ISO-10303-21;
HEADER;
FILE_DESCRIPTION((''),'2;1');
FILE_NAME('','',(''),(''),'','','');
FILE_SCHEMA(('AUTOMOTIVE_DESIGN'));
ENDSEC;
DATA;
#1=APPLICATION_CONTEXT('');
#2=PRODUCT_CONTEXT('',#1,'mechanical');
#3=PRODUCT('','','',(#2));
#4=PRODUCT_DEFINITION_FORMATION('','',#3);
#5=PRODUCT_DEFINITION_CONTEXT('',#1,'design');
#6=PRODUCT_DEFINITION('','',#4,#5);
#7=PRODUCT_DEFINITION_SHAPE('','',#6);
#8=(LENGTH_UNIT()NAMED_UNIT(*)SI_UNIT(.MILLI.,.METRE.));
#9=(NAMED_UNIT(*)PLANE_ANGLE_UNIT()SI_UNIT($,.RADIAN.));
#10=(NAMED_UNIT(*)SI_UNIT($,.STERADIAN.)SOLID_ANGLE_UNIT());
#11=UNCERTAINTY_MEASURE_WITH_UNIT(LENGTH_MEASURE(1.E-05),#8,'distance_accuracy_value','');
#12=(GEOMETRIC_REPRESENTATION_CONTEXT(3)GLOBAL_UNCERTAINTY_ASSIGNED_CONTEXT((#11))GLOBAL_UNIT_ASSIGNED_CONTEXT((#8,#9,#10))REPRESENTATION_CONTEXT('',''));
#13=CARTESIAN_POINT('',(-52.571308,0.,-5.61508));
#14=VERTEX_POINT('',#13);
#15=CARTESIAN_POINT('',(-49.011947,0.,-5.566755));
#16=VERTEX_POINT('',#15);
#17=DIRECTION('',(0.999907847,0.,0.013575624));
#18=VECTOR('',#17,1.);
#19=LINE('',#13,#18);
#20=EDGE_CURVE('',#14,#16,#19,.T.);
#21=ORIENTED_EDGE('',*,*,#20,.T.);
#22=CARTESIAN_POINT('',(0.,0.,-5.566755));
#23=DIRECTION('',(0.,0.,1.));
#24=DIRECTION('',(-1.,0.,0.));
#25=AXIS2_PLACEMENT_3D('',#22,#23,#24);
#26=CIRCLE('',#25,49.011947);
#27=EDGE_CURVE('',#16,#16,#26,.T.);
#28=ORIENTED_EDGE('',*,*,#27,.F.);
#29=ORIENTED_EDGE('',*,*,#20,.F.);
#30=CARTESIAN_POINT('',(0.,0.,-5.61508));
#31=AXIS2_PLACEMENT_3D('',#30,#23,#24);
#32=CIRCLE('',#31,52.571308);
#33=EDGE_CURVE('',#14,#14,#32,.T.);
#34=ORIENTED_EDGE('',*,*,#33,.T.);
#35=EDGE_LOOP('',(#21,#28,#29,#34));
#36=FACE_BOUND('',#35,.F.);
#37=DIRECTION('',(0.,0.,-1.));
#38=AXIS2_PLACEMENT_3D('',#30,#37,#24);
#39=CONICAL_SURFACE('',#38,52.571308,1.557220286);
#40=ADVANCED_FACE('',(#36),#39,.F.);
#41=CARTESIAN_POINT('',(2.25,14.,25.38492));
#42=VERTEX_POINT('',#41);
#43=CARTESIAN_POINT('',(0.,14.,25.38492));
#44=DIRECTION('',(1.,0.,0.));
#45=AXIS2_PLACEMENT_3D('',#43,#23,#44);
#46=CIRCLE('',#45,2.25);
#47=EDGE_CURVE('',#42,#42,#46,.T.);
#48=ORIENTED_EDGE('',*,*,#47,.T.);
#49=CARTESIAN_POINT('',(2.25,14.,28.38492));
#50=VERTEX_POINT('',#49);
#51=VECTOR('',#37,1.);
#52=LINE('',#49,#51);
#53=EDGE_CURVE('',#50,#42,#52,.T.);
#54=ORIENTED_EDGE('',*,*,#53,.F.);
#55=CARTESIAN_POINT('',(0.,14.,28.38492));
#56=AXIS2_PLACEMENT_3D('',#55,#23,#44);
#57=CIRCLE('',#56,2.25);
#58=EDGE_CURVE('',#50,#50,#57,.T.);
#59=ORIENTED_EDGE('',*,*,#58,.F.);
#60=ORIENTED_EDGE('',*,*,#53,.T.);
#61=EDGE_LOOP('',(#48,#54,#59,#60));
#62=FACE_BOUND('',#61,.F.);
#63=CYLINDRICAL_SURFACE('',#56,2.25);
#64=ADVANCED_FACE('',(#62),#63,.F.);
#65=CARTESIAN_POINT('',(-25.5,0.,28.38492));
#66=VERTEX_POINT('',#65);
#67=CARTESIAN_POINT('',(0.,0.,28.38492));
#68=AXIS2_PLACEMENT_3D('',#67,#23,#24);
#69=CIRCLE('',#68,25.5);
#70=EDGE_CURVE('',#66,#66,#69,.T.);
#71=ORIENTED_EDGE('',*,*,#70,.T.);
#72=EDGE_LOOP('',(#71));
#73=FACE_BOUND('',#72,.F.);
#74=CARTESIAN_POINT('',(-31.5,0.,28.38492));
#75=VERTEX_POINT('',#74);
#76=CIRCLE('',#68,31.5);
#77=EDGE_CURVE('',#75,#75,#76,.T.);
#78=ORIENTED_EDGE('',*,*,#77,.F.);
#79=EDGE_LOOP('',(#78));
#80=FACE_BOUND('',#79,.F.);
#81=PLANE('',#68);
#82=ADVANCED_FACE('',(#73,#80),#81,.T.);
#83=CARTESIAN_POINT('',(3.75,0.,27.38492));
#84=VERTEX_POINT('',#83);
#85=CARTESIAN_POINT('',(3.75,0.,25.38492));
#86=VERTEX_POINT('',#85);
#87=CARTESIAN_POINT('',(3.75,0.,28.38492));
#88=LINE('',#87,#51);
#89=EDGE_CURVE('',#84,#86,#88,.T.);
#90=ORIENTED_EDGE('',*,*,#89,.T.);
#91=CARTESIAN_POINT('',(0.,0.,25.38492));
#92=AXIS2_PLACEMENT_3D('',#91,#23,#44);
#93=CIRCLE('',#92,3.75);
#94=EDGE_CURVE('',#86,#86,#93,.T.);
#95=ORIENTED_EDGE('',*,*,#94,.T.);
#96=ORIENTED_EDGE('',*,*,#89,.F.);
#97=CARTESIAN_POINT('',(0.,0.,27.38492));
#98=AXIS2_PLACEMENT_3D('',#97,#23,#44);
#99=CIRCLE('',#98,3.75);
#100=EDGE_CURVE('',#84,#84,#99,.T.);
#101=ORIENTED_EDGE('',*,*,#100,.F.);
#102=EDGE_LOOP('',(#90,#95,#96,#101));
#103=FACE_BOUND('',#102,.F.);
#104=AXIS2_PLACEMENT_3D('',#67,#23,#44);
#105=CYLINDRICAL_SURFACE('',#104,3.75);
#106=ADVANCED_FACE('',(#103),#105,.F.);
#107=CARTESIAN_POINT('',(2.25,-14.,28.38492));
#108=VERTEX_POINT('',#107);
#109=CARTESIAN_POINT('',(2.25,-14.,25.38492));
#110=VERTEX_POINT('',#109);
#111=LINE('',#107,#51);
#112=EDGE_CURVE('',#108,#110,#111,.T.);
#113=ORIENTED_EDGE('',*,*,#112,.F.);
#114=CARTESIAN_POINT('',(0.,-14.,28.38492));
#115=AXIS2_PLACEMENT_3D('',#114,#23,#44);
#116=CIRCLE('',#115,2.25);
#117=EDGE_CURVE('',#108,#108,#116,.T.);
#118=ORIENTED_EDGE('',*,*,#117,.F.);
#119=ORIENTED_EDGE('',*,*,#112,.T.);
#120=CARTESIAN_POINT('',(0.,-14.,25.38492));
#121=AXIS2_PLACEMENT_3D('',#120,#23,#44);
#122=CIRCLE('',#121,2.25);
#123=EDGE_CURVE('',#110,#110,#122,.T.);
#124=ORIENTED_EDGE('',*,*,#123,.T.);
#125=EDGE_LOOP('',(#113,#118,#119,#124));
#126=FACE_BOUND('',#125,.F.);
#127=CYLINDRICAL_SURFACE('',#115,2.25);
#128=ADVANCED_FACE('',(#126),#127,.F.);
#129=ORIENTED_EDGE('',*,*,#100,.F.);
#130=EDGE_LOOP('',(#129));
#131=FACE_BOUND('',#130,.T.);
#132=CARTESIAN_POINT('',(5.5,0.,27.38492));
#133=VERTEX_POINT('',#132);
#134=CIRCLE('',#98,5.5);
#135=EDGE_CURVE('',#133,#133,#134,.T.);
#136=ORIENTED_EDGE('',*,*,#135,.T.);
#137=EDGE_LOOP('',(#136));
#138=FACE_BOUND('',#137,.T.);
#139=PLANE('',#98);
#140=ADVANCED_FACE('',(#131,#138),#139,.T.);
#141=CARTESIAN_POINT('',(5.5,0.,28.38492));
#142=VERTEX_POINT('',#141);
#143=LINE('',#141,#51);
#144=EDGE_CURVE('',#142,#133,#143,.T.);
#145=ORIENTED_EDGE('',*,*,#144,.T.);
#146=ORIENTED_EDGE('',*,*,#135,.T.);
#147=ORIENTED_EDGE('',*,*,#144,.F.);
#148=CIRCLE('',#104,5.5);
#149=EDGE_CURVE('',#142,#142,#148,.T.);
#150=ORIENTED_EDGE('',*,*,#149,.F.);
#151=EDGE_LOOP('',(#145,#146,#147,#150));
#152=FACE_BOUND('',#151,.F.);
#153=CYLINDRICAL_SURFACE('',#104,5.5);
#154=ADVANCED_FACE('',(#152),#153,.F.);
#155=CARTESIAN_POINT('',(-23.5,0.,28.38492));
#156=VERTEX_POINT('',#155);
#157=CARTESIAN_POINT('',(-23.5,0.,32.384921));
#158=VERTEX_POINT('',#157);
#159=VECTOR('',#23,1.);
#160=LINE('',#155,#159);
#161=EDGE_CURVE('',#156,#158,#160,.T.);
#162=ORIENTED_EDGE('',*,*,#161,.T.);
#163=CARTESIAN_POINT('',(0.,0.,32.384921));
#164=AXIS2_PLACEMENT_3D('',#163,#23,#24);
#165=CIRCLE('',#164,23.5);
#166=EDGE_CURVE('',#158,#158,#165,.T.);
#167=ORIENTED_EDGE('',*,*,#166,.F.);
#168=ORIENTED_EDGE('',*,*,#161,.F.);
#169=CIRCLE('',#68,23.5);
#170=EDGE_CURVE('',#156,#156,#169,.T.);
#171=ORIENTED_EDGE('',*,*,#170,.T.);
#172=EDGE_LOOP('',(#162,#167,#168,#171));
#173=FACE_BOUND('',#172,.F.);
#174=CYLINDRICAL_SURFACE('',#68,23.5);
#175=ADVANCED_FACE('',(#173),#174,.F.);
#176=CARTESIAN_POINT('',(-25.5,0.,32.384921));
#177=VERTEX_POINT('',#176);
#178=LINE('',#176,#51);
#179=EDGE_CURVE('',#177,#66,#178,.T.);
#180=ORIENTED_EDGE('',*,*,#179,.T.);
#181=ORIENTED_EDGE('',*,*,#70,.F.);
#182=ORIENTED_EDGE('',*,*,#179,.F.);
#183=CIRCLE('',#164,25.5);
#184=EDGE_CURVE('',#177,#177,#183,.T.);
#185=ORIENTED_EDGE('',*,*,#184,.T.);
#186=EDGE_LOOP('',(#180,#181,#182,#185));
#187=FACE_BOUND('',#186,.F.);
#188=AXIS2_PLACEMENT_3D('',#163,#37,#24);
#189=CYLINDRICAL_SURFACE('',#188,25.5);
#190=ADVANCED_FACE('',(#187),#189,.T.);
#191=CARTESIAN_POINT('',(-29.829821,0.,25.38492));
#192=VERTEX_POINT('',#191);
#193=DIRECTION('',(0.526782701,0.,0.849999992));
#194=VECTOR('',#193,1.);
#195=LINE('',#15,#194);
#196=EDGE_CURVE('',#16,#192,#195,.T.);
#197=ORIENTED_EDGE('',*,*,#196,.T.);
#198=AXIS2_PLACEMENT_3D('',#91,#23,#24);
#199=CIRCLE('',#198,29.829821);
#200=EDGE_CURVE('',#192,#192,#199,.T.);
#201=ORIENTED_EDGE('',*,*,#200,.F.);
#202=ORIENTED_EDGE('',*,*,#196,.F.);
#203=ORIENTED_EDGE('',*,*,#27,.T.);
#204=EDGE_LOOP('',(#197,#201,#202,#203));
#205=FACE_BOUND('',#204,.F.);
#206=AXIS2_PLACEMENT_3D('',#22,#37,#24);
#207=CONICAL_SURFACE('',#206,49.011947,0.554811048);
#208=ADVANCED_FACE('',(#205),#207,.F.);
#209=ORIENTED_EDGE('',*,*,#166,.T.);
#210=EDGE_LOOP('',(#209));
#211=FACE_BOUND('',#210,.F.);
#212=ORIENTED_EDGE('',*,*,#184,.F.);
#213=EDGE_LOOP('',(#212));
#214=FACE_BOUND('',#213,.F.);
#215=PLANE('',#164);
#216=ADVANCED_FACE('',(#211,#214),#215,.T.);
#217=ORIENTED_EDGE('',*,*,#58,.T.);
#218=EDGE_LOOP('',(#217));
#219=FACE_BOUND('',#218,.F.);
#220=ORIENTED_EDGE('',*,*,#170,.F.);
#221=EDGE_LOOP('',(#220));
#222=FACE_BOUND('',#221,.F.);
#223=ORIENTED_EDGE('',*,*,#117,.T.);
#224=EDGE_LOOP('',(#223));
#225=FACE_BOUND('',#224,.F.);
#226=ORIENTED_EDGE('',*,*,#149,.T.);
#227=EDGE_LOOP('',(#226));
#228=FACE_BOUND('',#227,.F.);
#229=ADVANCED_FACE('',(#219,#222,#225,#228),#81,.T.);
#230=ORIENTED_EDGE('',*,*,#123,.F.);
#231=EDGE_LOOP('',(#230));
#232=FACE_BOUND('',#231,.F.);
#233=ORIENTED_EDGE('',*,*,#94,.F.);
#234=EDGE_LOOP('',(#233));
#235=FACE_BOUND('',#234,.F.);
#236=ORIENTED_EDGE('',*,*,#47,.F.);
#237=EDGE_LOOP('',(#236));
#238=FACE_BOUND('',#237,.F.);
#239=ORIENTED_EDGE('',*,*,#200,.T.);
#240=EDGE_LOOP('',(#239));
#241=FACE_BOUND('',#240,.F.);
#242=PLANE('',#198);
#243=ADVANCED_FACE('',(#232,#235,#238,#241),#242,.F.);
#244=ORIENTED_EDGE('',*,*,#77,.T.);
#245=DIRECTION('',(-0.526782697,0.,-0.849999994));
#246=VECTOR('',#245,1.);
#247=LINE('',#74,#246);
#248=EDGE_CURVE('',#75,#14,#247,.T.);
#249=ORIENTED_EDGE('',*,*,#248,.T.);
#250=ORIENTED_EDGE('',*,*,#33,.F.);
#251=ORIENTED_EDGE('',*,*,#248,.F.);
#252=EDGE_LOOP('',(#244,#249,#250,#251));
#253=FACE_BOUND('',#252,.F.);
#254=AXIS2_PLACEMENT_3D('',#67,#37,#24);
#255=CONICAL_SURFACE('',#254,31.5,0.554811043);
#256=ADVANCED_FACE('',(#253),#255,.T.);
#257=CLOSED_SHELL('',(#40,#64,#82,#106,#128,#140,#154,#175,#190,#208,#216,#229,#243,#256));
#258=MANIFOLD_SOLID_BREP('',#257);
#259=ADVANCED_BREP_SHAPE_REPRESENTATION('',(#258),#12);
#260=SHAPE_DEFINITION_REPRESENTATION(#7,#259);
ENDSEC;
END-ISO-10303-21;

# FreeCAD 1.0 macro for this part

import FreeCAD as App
import Part
import Sketcher

doc = App.newDocument("Part")
body = doc.addObject("PartDesign::Body", "Body")

sketch1 = doc.addObject("Sketcher::SketchObject", "Sketch")
body.addObject(sketch1)
sketch1.AttachmentSupport = (doc.XZ_Plane, [""])
sketch1.MapMode = "FlatFace"
sketch1.addGeometry([
    Part.LineSegment(App.Vector(-23.5, 28.38492, 0), App.Vector(-23.5, 32.384921, 0)),
    Part.LineSegment(App.Vector(-23.5, 32.384921, 0), App.Vector(-25.5, 32.384921, 0)),
    Part.LineSegment(App.Vector(-25.5, 32.384921, 0), App.Vector(-25.5, 28.38492, 0)),
    Part.LineSegment(App.Vector(-25.5, 28.38492, 0), App.Vector(-31.5, 28.38492, 0)),
    Part.LineSegment(App.Vector(-31.5, 28.38492, 0), App.Vector(-52.571308, -5.61508, 0)),
    Part.LineSegment(App.Vector(-52.571308, -5.61508, 0), App.Vector(-49.011947, -5.566755, 0)),
    Part.LineSegment(App.Vector(-49.011947, -5.566755, 0), App.Vector(-29.829821, 25.38492, 0)),
    Part.LineSegment(App.Vector(-29.829821, 25.38492, 0), App.Vector(0, 25.38492, 0)),
    Part.LineSegment(App.Vector(0, 25.38492, 0), App.Vector(0, 28.38492, 0)),
    Part.LineSegment(App.Vector(0, 28.38492, 0), App.Vector(-23.5, 28.38492, 0)),
], False)
sketch1.addConstraint([
    Sketcher.Constraint("Coincident", 0, 2, 1, 1),
    Sketcher.Constraint("Coincident", 1, 2, 2, 1),
    Sketcher.Constraint("Coincident", 2, 2, 3, 1),
    Sketcher.Constraint("Coincident", 3, 2, 4, 1),
    Sketcher.Constraint("Coincident", 4, 2, 5, 1),
    Sketcher.Constraint("Coincident", 5, 2, 6, 1),
    Sketcher.Constraint("Coincident", 6, 2, 7, 1),
    Sketcher.Constraint("Coincident", 7, 2, 8, 1),
    Sketcher.Constraint("Coincident", 8, 2, 9, 1),
    Sketcher.Constraint("Coincident", 9, 2, 0, 1),
    Sketcher.Constraint("Vertical", 0),
    Sketcher.Constraint("Horizontal", 1),
    Sketcher.Constraint("Vertical", 2),
    Sketcher.Constraint("Horizontal", 3),
    Sketcher.Constraint("Horizontal", 7),
    Sketcher.Constraint("Vertical", 8),
    Sketcher.Constraint("Horizontal", 9),
    Sketcher.Constraint("PointOnObject", 7, 2, -2),
    Sketcher.Constraint("Parallel", 4, 6),
    Sketcher.Constraint("Horizontal", 3, 2, 8, 2),
    Sketcher.Constraint("DistanceX", 1, 2, 1, 1, 2.0),
    Sketcher.Constraint("DistanceX", 3, 2, 3, 1, 6.0),
    Sketcher.Constraint("DistanceY", 0, 1, 0, 2, 4.000001),
    Sketcher.Constraint("DistanceY", 8, 1, 8, 2, 3.0),
    Sketcher.Constraint("Distance", 4, 40.0),
    Sketcher.Constraint("DistanceX", 9, 2, 9, 1, 23.5),
    Sketcher.Constraint("DistanceY", 4, 2, 3, 2, 34.0),
    Sketcher.Constraint("DistanceX", 7, 1, 7, 2, 29.829821),
    Sketcher.Constraint("Distance", 5, 3.559689),
    Sketcher.Constraint("DistanceY", -1, 1, 0, 2, 32.384921),
])
revolution = doc.addObject("PartDesign::Revolution", "Revolution")
body.addObject(revolution)
revolution.Profile = sketch1
revolution.ReferenceAxis = (sketch1, ["V_Axis"])
revolution.Angle = 360

sketch2 = doc.addObject("Sketcher::SketchObject", "Sketch001")
body.addObject(sketch2)
sketch2.AttachmentSupport = (doc.XY_Plane, [""])
sketch2.MapMode = "FlatFace"
sketch2.AttachmentOffset = App.Placement(App.Vector(0, 0, 28.38492), App.Rotation())
sketch2.addGeometry([
    Part.Circle(App.Vector(0, 0, 0), App.Vector(0, 0, 1), 3.75),
    Part.Circle(App.Vector(0, -14, 0), App.Vector(0, 0, 1), 2.25),
    Part.Circle(App.Vector(0, 14, 0), App.Vector(0, 0, 1), 2.25),
], False)
sketch2.addConstraint([
    Sketcher.Constraint("Coincident", 0, 3, -1, 1),
    Sketcher.Constraint("Equal", 1, 2),
    Sketcher.Constraint("Symmetric", 1, 3, 2, 3, -1, 1),
    Sketcher.Constraint("PointOnObject", 1, 3, -2),
    Sketcher.Constraint("Diameter", 0, 7.5),
    Sketcher.Constraint("Diameter", 1, 4.5),
    Sketcher.Constraint("DistanceY", 1, 3, -1, 1, 14.0),
])
pocket1 = doc.addObject("PartDesign::Pocket", "Pocket")
body.addObject(pocket1)
pocket1.Profile = sketch2
pocket1.Length = 25

sketch3 = doc.addObject("Sketcher::SketchObject", "Sketch002")
body.addObject(sketch3)
sketch3.AttachmentSupport = (doc.XY_Plane, [""])
sketch3.MapMode = "FlatFace"
sketch3.AttachmentOffset = App.Placement(App.Vector(0, 0, 28.38492), App.Rotation())
sketch3.addGeometry(Part.Circle(App.Vector(0, 0, 0), App.Vector(0, 0, 1), 5.5), False)
sketch3.addConstraint([
    Sketcher.Constraint("Coincident", 0, 3, -1, 1),
    Sketcher.Constraint("Diameter", 0, 11.0),
])
pocket2 = doc.addObject("PartDesign::Pocket", "Pocket001")
body.addObject(pocket2)
pocket2.Profile = sketch3
pocket2.Length = 1

doc.recompute()
